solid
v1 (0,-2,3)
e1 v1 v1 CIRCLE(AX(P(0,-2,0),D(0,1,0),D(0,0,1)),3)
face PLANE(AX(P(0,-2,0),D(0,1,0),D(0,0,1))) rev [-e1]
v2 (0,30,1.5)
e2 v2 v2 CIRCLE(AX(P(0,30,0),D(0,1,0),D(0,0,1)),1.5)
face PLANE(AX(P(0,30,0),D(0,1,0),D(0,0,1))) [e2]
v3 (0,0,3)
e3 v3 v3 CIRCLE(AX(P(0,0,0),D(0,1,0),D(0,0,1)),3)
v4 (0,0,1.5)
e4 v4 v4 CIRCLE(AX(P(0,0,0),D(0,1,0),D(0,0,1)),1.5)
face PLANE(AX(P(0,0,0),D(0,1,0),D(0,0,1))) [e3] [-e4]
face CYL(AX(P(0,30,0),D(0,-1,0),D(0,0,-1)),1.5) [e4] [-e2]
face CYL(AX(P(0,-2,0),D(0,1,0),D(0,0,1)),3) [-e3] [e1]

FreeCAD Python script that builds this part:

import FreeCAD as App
import Part
import Sketcher
Q = App.Units.Quantity

doc = App.newDocument("Part")
body = doc.addObject("PartDesign::Body", "Body")

sketch1 = body.newObject("Sketcher::SketchObject", "Sketch")
sketch1.AttachmentSupport = (doc.getObject("XZ_Plane"), [""])
sketch1.MapMode = "FlatFace"
sketch1.addGeometry(Part.Circle(App.Vector(0, 0, 0), App.Vector(0, 0, 1), 1.5), False)
sketch1.addConstraint([
    Sketcher.Constraint("Coincident", 0, 3, -1, 1),
    Sketcher.Constraint("Diameter", 0, Q("3 mm")),
])
pad1 = body.newObject("PartDesign::Pad", "Pad")
pad1.Profile = sketch1
pad1.Length = 30
pad1.Reversed = True

sketch2 = body.newObject("Sketcher::SketchObject", "Sketch001")
sketch2.AttachmentSupport = (doc.getObject("XZ_Plane"), [""])
sketch2.MapMode = "FlatFace"
sketch2.addGeometry(Part.Circle(App.Vector(0, 0, 0), App.Vector(0, 0, 1), 3), False)
sketch2.addConstraint([
    Sketcher.Constraint("Coincident", 0, 3, -1, 1),
    Sketcher.Constraint("Diameter", 0, Q("6 mm")),
])
pad2 = body.newObject("PartDesign::Pad", "Pad001")
pad2.Profile = sketch2
pad2.Length = 2

doc.recompute()
